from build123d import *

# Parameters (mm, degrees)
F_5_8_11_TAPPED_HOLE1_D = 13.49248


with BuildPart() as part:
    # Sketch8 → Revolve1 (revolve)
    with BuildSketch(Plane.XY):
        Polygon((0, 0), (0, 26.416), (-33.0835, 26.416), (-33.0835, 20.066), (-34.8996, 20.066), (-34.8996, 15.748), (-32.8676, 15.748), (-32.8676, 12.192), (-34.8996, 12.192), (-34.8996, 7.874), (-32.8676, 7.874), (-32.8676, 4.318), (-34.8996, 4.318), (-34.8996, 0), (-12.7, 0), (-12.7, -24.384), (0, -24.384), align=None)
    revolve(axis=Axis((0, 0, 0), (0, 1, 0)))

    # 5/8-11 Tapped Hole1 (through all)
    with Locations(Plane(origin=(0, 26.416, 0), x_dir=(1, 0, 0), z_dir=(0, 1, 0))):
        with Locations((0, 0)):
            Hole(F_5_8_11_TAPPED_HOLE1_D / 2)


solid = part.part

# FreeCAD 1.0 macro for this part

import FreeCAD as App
import Part
import Sketcher
Q = App.Units.Quantity


def add_polygon(sketch, points):
    """Adds a closed chain of lines whose ends are joined by coincident constraints."""
    first, n = sketch.GeometryCount, len(points)
    for a, b in zip(points, points[1:] + points[:1]):
        sketch.addGeometry(Part.LineSegment(App.Vector(*a, 0), App.Vector(*b, 0)), False)
    for i in range(n):
        sketch.addConstraint(Sketcher.Constraint("Coincident", first + i, 2, first + (i + 1) % n, 1))

doc = App.newDocument("Part")
body = doc.addObject("PartDesign::Body", "Body")

# Sketch on XY plane
sketch1 = body.newObject("Sketcher::SketchObject", "Sketch")
sketch1.AttachmentSupport = (doc.getObject("XY_Plane"), [""])
sketch1.MapMode = "FlatFace"
add_polygon(sketch1, [(0, 26.4), (-33.1, 26.4), (-33.1, 20.1), (-34.9, 20.1), (-34.9, 15.7), (-32.9, 15.7), (-32.9, 12.2), (-34.9, 12.2), (-34.9, 7.9), (-32.9, 7.9), (-32.9, 4.3), (-34.9, 4.3), (-34.9, 0), (-12.7, 0), (-12.7, -24.4), (0, -24.4)])  # lines 0-15
sketch1.addConstraint([
    Sketcher.Constraint("Horizontal", 0),
    Sketcher.Constraint("Vertical", 1),
    Sketcher.Constraint("Horizontal", 2),
    Sketcher.Constraint("Vertical", 3),
    Sketcher.Constraint("Horizontal", 4),
    Sketcher.Constraint("Vertical", 5),
    Sketcher.Constraint("Horizontal", 6),
    Sketcher.Constraint("Vertical", 7),
    Sketcher.Constraint("Horizontal", 8),
    Sketcher.Constraint("Vertical", 9),
    Sketcher.Constraint("Horizontal", 10),
    Sketcher.Constraint("Vertical", 11),
    Sketcher.Constraint("Horizontal", 12),
    Sketcher.Constraint("Vertical", 13),
    Sketcher.Constraint("Horizontal", 14),
    Sketcher.Constraint("Vertical", 15),
    Sketcher.Constraint("PointOnObject", 11, 2, -1),
    Sketcher.Constraint("PointOnObject", 14, 2, -2),
    Sketcher.Constraint("Vertical", 3, 2, 6, 2),
    Sketcher.Constraint("Vertical", 5, 2, 8, 2),
    Sketcher.Constraint("Vertical", 7, 2, 10, 2),
    Sketcher.Constraint("Equal", 3, 7),
    Sketcher.Constraint("Equal", 5, 9),
    Sketcher.Constraint("Equal", 7, 11),
    Sketcher.Constraint("DistanceY", 15, 1, 15, 2, Q("2 in")),
    Sketcher.Constraint("DistanceX", 14, 1, 14, 2, Q("0.5 in")),
    Sketcher.Constraint("DistanceX", 4, 1, 4, 2, Q("0.08 in")),
    Sketcher.Constraint("DistanceY", 1, 2, 1, 1, Q("0.25 in")),
    Sketcher.Constraint("DistanceY", 3, 2, 3, 1, Q("0.17 in")),
    Sketcher.Constraint("DistanceY", 5, 2, 5, 1, Q("0.14 in")),
    Sketcher.Constraint("DistanceX", 12, 1, 12, 2, Q("0.874 in")),
    Sketcher.Constraint("DistanceX", 0, 2, 0, 1, Q("1.3025 in")),
])
revolution = body.newObject("PartDesign::Revolution", "Revolution")
revolution.Profile = sketch1
revolution.ReferenceAxis = (sketch1, ["V_Axis"])
revolution.Angle = 360

# Sketch on XZ plane
sketch2 = body.newObject("Sketcher::SketchObject", "Sketch001")
sketch2.AttachmentSupport = (doc.getObject("XZ_Plane"), [""])
sketch2.MapMode = "FlatFace"
sketch2.AttachmentOffset = App.Placement(App.Vector(0, 0, -1.04 * 25.4), App.Rotation())
sketch2.addGeometry(Part.Circle(App.Vector(0, 0, 0), App.Vector(0, 0, 1), 7), False)
sketch2.addConstraint([
    Sketcher.Constraint("Coincident", 0, 3, -1, 1),
    Sketcher.Constraint("Diameter", 0, Q("0.5312 in")),
])
doc.recompute()
hole = body.newObject("PartDesign::Hole", "Hole")
hole.Profile = sketch2
hole.ThreadType = "None"
hole.Diameter = Q("0.5312 in")
hole.DepthType = "ThroughAll"
hole.Reversed = True

doc.recompute()
